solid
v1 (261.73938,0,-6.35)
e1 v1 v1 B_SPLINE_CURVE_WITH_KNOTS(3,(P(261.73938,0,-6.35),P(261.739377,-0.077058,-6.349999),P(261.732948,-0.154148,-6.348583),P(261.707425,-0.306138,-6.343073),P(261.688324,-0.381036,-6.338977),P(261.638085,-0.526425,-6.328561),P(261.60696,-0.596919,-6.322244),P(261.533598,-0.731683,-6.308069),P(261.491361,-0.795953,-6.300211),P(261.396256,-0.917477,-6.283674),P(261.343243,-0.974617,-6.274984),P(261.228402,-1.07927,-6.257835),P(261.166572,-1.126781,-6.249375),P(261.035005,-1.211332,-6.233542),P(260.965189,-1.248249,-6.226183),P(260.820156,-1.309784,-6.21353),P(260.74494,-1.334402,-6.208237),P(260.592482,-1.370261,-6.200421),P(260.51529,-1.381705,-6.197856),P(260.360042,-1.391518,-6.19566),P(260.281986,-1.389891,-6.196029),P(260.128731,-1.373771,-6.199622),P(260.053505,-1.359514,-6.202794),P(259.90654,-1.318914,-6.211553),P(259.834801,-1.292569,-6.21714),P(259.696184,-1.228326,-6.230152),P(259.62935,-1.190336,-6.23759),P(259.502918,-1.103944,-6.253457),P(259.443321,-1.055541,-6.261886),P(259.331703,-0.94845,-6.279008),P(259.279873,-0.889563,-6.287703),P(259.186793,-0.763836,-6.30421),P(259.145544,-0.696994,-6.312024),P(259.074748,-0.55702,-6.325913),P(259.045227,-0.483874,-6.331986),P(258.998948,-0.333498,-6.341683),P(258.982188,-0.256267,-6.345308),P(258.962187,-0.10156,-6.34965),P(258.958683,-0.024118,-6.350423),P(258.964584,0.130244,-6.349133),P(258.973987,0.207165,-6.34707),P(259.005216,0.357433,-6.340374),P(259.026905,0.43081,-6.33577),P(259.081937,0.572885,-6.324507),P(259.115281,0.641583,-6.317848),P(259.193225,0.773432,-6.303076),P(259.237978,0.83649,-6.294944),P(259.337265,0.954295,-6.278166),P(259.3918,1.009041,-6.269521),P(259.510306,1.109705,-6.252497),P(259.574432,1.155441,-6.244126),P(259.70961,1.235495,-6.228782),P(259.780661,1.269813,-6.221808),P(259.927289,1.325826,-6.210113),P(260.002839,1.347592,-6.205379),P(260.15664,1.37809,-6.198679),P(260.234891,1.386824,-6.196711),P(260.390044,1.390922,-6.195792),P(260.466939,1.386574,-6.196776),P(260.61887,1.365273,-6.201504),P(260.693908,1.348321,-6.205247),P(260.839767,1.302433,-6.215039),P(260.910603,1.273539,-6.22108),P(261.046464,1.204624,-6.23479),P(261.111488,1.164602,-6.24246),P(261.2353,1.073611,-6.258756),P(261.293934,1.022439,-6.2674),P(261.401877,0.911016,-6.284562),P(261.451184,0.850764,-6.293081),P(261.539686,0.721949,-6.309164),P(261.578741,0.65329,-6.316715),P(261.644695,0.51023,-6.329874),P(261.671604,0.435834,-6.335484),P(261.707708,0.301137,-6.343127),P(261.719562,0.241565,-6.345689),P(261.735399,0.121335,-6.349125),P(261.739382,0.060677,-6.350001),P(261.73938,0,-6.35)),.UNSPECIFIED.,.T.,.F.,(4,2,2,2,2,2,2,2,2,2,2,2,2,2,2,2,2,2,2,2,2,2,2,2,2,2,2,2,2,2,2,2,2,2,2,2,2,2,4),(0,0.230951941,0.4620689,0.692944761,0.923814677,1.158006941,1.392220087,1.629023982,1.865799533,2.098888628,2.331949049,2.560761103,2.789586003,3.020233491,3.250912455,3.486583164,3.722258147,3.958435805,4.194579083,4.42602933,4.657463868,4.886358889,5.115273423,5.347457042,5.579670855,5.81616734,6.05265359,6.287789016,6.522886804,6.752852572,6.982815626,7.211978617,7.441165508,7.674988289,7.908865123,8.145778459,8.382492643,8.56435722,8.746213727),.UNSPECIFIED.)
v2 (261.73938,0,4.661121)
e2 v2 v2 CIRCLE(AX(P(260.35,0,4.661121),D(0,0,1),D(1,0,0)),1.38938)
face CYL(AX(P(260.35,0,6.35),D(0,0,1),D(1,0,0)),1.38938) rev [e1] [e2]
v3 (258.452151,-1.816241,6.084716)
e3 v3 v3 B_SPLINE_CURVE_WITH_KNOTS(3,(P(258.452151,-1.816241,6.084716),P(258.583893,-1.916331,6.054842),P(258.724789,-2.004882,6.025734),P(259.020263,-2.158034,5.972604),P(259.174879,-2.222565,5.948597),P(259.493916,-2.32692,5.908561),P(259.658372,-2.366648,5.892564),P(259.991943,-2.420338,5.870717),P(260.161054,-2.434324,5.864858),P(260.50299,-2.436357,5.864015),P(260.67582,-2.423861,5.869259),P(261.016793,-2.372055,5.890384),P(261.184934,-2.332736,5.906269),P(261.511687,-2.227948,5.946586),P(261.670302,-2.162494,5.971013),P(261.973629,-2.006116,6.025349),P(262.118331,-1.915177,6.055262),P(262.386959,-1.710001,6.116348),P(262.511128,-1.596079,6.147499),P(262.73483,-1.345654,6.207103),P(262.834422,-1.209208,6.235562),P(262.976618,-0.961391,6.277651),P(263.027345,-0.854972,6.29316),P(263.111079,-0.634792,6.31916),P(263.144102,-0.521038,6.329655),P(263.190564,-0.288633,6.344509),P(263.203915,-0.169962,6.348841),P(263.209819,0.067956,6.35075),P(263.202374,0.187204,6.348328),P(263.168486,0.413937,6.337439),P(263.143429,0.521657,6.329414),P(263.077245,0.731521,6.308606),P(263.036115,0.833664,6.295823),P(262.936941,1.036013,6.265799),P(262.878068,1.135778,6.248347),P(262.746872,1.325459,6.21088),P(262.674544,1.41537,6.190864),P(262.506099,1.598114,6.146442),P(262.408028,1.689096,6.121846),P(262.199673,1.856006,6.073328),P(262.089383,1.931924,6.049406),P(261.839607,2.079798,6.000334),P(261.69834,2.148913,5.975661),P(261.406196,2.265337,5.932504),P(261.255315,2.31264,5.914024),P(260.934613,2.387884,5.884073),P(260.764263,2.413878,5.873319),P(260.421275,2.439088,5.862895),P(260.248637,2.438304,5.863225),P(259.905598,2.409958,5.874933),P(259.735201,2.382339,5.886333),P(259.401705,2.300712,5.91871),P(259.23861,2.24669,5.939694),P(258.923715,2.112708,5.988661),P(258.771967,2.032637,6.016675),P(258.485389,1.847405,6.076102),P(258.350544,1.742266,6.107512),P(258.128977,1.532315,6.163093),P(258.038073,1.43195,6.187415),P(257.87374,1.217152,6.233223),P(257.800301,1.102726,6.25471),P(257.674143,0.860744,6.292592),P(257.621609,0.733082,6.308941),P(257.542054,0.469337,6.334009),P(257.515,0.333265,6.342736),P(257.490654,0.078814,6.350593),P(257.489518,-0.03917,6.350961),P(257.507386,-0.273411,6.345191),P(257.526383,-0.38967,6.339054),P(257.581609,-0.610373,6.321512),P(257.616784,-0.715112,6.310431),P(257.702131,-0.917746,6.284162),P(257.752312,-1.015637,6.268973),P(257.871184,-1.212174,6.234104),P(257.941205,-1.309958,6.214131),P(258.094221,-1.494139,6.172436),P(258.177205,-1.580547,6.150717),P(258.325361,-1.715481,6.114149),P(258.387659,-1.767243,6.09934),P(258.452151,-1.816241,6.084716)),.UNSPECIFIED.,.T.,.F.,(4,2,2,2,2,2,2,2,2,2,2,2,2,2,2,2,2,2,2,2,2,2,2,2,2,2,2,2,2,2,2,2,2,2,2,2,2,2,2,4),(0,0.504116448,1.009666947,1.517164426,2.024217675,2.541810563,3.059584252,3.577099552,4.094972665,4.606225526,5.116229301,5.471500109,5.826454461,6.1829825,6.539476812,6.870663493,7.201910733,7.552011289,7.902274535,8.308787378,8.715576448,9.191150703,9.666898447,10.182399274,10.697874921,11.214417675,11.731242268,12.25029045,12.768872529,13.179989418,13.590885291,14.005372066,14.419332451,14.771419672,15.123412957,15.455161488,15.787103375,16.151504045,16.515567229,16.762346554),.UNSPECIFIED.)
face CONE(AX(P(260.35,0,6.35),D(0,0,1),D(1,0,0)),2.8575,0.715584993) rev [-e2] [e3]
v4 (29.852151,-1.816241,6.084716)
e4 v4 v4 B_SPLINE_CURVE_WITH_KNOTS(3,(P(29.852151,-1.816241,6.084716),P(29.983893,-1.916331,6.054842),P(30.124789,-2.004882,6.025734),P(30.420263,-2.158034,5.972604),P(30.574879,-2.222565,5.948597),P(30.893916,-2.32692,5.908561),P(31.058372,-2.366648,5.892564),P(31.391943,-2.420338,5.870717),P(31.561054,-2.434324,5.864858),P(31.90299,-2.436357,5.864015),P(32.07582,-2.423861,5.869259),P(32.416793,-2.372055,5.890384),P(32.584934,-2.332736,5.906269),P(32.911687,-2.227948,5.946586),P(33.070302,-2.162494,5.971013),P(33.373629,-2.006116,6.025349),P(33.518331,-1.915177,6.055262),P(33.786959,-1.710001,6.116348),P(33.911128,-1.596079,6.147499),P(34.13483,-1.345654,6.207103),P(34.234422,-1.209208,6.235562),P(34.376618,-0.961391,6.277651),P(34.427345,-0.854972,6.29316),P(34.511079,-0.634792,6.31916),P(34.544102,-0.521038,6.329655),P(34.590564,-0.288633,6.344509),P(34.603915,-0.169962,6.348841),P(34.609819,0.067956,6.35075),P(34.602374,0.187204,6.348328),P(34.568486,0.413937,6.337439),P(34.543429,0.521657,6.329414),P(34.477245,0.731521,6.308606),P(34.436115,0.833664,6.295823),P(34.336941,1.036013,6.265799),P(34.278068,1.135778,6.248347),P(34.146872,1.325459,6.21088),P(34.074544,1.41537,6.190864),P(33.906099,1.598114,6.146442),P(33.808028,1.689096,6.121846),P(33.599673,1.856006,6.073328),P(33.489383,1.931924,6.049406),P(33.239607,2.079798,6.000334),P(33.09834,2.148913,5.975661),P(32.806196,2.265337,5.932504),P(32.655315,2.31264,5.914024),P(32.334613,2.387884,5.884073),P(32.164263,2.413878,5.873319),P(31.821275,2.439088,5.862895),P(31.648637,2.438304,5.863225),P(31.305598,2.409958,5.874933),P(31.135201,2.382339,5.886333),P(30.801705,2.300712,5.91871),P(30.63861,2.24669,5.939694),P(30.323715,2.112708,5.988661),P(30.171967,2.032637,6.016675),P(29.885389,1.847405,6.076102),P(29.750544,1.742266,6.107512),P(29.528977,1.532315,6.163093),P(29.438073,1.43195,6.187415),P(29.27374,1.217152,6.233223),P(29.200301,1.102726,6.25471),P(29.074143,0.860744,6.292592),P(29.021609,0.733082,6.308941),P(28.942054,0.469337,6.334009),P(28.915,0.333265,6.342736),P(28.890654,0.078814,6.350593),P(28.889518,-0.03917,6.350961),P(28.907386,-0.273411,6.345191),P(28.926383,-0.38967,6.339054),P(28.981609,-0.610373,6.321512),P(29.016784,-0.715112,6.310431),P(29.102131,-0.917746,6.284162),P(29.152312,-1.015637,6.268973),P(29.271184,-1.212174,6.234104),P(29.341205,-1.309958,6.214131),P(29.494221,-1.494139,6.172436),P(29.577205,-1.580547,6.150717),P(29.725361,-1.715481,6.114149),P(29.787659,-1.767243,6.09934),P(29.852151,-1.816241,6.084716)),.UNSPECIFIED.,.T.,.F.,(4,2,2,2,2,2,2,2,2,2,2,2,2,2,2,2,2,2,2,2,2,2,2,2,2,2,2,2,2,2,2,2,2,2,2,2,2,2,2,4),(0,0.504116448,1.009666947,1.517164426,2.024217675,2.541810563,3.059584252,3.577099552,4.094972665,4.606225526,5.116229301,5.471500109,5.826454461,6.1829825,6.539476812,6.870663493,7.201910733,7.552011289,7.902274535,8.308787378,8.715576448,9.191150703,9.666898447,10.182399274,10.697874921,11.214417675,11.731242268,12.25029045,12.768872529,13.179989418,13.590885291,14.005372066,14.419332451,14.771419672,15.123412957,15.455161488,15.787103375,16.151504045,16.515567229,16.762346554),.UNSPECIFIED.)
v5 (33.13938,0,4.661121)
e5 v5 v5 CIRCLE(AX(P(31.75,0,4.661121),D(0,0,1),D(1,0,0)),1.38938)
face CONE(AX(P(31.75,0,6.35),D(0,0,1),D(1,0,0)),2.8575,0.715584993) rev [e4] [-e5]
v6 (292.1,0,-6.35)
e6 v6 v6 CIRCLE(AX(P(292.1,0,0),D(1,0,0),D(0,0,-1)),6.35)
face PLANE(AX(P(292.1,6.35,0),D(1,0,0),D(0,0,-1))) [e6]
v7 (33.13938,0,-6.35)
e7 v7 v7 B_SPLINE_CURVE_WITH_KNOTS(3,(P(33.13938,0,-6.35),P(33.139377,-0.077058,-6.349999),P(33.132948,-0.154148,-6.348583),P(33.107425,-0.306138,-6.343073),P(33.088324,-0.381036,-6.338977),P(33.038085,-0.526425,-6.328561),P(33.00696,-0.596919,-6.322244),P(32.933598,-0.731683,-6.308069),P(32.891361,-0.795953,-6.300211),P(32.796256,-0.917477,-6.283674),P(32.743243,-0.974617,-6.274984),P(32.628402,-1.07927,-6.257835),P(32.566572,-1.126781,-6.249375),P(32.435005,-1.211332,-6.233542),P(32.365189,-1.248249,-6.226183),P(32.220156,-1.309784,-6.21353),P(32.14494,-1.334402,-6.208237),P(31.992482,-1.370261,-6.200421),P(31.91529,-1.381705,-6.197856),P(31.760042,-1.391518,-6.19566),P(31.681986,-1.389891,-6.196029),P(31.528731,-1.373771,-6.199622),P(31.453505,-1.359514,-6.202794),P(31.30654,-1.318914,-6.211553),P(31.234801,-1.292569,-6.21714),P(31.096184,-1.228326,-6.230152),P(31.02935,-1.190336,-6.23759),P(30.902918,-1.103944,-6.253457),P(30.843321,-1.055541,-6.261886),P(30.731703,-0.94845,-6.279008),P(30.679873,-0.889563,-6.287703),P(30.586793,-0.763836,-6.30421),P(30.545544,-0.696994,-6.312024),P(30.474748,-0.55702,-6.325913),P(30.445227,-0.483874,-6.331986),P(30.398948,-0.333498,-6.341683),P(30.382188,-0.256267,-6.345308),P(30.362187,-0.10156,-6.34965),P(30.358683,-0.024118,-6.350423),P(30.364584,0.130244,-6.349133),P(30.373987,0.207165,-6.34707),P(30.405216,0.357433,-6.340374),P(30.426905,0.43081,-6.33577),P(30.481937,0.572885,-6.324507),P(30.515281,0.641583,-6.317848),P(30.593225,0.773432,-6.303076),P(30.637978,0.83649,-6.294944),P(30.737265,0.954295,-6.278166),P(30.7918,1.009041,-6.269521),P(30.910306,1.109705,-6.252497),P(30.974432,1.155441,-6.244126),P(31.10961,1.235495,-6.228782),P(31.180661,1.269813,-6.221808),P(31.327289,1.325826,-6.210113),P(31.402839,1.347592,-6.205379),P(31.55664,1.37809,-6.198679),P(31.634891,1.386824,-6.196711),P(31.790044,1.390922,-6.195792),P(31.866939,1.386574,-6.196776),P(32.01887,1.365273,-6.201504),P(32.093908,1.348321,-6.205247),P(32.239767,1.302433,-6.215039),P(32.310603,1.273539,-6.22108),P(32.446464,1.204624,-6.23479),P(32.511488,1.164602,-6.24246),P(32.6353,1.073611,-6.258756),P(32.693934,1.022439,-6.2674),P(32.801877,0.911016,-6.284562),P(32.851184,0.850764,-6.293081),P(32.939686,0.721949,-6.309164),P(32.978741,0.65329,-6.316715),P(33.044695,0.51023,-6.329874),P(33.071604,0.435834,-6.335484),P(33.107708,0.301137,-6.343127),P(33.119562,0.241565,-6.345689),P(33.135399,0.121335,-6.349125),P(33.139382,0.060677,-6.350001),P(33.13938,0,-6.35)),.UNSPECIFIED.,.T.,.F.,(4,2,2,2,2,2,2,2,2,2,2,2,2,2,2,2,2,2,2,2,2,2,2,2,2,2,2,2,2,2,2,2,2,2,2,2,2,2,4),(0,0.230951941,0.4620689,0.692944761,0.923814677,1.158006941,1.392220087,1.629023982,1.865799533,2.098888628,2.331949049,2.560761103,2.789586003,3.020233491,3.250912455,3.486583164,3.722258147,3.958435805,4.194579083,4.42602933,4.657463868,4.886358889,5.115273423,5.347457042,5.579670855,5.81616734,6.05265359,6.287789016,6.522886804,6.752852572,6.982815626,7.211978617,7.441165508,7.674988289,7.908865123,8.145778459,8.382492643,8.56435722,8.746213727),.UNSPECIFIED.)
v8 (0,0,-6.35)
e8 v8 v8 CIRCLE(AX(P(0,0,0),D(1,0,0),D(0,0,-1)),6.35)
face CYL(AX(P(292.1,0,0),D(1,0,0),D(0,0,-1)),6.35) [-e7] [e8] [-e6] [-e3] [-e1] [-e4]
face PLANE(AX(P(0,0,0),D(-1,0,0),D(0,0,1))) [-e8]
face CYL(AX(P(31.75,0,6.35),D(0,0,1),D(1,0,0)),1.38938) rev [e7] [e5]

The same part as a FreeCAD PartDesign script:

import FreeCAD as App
import Part
import Sketcher
Q = App.Units.Quantity


def add_polygon(sketch, points):
    """Adds a closed chain of lines whose ends are joined by coincident constraints."""
    first, n = sketch.GeometryCount, len(points)
    for a, b in zip(points, points[1:] + points[:1]):
        sketch.addGeometry(Part.LineSegment(App.Vector(*a, 0), App.Vector(*b, 0)), False)
    for i in range(n):
        sketch.addConstraint(Sketcher.Constraint("Coincident", first + i, 2, first + (i + 1) % n, 1))

doc = App.newDocument("Part")
body = doc.addObject("PartDesign::Body", "Body")

# Sketch on XY plane
sketch1 = doc.addObject("Sketcher::SketchObject", "Sketch")
body.addObject(sketch1)
sketch1.AttachmentSupport = (doc.XY_Plane, [""])
sketch1.MapMode = "FlatFace"
add_polygon(sketch1, [(0, 6), (0, 0), (292, 0), (292, 6)])  # lines 0-3
sketch1.addConstraint([
    Sketcher.Constraint("Vertical", 0),
    Sketcher.Constraint("Horizontal", 1),
    Sketcher.Constraint("Vertical", 2),
    Sketcher.Constraint("Horizontal", 3),
    Sketcher.Constraint("Coincident", 0, 2, -1, 1),
    Sketcher.Constraint("DistanceX", 1, 1, 1, 2, Q("11.5 in")),
    Sketcher.Constraint("DistanceY", 0, 2, 0, 1, Q("0.25 in")),
])
revolution = doc.addObject("PartDesign::Revolution", "Revolution")
body.addObject(revolution)
revolution.Profile = sketch1
revolution.ReferenceAxis = (sketch1, ["H_Axis"])
revolution.Angle = 360

# Sketch on XY plane
sketch2 = doc.addObject("Sketcher::SketchObject", "Sketch001")
body.addObject(sketch2)
sketch2.AttachmentSupport = (doc.XY_Plane, [""])
sketch2.MapMode = "FlatFace"
sketch2.AttachmentOffset = App.Placement(App.Vector(0, 0, 0.25 * 25.4), App.Rotation())
sketch2.addGeometry([
    Part.Circle(App.Vector(31.8, 0, 0), App.Vector(0, 0, 1), 1.4),
    Part.Circle(App.Vector(260.4, 0, 0), App.Vector(0, 0, 1), 1.4),
], False)
sketch2.addConstraint([
    Sketcher.Constraint("Equal", 0, 1),
    Sketcher.Constraint("PointOnObject", 0, 3, -1),
    Sketcher.Constraint("PointOnObject", 1, 3, -1),
    Sketcher.Constraint("DistanceX", 0, 3, 1, 3, Q("9 in")),
    Sketcher.Constraint("Diameter", 0, Q("0.1094 in")),
    Sketcher.Constraint("DistanceX", -1, 1, 0, 3, Q("1.25 in")),
])
doc.recompute()
hole = doc.addObject("PartDesign::Hole", "Hole")
body.addObject(hole)
hole.Profile = sketch2
hole.ThreadType = "None"
hole.Diameter = Q("0.1094 in")
hole.DepthType = "ThroughAll"
hole.HoleCutType = "Countersink"
hole.HoleCutDiameter = Q("0.225 in")
hole.HoleCutCountersinkAngle = 82

doc.recompute()
